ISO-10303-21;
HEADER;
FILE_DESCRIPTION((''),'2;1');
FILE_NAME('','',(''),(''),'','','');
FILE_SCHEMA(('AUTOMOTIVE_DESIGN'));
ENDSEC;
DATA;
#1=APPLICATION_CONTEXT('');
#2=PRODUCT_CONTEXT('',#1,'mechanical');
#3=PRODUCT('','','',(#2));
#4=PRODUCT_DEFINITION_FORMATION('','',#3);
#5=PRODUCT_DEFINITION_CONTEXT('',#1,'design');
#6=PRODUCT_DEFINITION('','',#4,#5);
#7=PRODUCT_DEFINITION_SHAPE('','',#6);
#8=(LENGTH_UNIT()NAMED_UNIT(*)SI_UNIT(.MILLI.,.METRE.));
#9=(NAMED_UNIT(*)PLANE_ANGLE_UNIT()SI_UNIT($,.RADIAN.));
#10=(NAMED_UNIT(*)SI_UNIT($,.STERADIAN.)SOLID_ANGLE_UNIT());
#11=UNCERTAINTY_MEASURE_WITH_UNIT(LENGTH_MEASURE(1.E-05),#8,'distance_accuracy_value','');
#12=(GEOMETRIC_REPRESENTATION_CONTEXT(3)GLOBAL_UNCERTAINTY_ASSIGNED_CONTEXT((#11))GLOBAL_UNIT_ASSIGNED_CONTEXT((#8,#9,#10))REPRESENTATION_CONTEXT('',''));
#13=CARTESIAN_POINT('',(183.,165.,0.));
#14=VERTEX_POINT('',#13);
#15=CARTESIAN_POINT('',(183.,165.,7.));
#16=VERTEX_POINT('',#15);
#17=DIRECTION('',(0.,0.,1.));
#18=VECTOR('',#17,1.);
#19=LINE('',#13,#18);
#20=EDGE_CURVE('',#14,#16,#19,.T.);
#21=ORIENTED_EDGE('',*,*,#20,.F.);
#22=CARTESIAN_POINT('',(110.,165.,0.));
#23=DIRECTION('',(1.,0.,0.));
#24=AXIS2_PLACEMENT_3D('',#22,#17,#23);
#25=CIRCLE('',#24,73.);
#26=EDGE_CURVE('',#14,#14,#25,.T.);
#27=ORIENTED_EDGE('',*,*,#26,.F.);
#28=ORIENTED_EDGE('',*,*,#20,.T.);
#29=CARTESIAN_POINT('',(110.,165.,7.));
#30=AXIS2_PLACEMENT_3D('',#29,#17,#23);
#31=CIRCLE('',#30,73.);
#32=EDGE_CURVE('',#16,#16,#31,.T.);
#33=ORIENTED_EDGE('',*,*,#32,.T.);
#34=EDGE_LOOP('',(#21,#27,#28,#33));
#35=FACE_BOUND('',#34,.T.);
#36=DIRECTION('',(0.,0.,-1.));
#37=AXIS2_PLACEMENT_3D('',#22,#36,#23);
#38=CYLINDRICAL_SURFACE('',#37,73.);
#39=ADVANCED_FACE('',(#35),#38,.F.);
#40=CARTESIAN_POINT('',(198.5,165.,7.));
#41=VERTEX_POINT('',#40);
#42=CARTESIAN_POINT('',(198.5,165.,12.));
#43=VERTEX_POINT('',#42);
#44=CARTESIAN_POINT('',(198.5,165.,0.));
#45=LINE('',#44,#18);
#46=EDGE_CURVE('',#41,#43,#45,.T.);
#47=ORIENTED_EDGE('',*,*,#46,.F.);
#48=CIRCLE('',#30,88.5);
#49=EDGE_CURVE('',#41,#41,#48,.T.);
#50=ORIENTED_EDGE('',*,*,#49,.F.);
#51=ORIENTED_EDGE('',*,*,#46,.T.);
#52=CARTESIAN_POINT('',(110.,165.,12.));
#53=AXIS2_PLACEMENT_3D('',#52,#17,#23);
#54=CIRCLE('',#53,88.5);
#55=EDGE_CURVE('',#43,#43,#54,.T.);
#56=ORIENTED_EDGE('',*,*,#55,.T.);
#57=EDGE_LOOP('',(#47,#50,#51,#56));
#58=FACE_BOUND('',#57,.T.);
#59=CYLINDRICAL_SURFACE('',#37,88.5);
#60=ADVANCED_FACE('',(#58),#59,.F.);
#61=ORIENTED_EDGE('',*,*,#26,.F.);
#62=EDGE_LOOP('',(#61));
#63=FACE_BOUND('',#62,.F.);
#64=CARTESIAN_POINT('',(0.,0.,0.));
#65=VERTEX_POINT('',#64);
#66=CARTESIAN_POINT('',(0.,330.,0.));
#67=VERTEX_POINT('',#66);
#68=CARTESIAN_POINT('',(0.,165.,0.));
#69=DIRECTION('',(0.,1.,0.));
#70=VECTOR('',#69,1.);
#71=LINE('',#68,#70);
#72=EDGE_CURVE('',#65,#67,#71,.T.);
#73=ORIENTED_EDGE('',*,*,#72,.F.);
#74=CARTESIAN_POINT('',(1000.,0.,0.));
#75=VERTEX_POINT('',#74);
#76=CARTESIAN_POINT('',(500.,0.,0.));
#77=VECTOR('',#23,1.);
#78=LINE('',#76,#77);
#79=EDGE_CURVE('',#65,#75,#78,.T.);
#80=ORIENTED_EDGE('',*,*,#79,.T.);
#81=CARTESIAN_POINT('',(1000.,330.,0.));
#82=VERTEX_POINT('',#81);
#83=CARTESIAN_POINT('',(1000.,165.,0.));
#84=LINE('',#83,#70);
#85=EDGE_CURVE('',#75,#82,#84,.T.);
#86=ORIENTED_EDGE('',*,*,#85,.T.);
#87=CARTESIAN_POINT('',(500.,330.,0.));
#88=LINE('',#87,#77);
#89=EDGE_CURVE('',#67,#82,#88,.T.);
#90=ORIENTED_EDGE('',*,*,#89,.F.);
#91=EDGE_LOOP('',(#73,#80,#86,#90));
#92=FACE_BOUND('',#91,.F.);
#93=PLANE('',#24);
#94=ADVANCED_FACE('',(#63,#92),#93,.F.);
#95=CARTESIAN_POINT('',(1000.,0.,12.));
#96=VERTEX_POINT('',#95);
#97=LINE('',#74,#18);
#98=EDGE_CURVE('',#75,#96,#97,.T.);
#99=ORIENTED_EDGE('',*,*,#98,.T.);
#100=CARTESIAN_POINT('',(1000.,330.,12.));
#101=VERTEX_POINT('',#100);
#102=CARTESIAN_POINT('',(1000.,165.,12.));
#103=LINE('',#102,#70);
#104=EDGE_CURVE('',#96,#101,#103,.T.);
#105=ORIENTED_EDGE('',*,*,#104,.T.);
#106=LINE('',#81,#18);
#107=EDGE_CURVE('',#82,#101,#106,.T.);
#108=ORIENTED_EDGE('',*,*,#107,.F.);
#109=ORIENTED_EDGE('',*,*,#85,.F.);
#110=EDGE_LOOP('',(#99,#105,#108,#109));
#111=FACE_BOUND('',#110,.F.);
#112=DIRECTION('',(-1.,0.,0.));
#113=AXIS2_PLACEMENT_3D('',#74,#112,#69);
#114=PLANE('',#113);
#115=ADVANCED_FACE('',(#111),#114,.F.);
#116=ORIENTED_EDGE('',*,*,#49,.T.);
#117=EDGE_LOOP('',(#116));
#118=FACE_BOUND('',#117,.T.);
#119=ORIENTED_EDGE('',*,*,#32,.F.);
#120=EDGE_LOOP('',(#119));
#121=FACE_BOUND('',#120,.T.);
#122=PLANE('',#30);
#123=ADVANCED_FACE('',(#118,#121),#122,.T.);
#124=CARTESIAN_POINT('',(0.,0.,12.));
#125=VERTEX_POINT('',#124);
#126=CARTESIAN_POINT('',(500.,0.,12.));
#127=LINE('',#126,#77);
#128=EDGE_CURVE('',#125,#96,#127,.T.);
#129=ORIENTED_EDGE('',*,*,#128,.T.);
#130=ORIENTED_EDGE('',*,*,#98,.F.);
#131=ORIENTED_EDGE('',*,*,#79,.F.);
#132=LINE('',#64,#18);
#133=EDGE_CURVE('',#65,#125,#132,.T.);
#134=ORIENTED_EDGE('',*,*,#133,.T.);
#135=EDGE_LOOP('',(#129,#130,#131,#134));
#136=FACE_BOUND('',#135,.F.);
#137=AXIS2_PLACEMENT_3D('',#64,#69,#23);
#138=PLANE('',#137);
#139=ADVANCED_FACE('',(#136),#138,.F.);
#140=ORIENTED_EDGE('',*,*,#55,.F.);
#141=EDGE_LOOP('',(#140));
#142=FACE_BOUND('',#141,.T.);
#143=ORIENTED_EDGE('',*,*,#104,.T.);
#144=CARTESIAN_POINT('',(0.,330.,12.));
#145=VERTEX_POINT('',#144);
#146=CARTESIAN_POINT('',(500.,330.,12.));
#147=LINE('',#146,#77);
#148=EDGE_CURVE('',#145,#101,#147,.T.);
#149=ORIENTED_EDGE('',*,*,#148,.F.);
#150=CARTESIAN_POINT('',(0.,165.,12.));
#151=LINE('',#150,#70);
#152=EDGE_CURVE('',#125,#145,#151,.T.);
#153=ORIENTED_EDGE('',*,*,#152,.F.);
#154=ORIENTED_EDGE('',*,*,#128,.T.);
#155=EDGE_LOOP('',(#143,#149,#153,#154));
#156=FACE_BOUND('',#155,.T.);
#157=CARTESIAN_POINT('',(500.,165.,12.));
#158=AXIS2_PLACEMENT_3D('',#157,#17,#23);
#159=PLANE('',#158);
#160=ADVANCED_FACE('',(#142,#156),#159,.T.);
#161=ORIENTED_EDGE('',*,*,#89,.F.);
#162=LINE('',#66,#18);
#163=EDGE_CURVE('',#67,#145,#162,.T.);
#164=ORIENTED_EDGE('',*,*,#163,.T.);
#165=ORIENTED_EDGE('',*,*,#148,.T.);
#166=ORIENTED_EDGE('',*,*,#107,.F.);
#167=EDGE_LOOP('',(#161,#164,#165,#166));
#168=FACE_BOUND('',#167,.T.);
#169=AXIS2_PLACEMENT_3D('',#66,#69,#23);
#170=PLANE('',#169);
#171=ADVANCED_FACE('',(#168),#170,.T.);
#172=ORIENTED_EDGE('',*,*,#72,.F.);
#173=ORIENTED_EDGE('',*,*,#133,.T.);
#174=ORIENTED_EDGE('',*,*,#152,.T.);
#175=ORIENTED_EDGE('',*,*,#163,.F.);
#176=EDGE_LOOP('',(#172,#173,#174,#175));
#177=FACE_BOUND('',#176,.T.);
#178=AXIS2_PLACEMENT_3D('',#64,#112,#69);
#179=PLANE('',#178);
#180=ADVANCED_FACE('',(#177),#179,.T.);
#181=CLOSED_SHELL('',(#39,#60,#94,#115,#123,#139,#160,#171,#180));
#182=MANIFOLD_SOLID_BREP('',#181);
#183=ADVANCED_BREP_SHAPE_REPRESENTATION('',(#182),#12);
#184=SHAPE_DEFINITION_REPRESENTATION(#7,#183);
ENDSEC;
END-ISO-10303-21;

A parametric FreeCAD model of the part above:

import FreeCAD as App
import Part
import Sketcher

V = App.Vector


def add_polygon(sketch, points):
    """Adds a closed chain of lines whose ends are joined by coincident constraints."""
    first, n = sketch.GeometryCount, len(points)
    for a, b in zip(points, points[1:] + points[:1]):
        sketch.addGeometry(Part.LineSegment(App.Vector(*a, 0), App.Vector(*b, 0)), False)
    for i in range(n):
        sketch.addConstraint(Sketcher.Constraint("Coincident", first + i, 2, first + (i + 1) % n, 1))

doc = App.newDocument("Part")
body = doc.addObject("PartDesign::Body", "Body")

# Sketch on XY plane
sketch1 = doc.addObject("Sketcher::SketchObject", "Sketch")
body.addObject(sketch1)
sketch1.AttachmentSupport = (doc.XY_Plane, [""])
sketch1.MapMode = "FlatFace"
add_polygon(sketch1, [(0, 330), (0, 0), (1000, 0), (1000, 330)])  # lines 0-3
sketch1.addGeometry(Part.Circle(V(110, 165, 0), V(0, 0, 1), 88), False)  # 4
sketch1.addConstraint([
    Sketcher.Constraint("Vertical", 0),
    Sketcher.Constraint("Horizontal", 1),
    Sketcher.Constraint("Vertical", 2),
    Sketcher.Constraint("Horizontal", 3),
    Sketcher.Constraint("Coincident", 0, 2, -1, 1),
    Sketcher.Constraint("Diameter", 4, 177.0),
    Sketcher.Constraint("DistanceX", 1, 1, 1, 2, 1000.0),
    Sketcher.Constraint("DistanceY", 0, 2, 0, 1, 330.0),
    Sketcher.Constraint("DistanceX", -1, 1, 4, 3, 110.0),
    Sketcher.Constraint("DistanceY", -1, 1, 4, 3, 165.0),
])
pad1 = doc.addObject("PartDesign::Pad", "Pad")
body.addObject(pad1)
pad1.Profile = sketch1
pad1.Length = 12

# Sketch on XY plane
sketch2 = doc.addObject("Sketcher::SketchObject", "Sketch001")
body.addObject(sketch2)
sketch2.AttachmentSupport = (doc.XY_Plane, [""])
sketch2.MapMode = "FlatFace"
sketch2.addGeometry([
    Part.Circle(V(110, 165, 0), V(0, 0, 1), 88),
    Part.Circle(V(110, 165, 0), V(0, 0, 1), 73),
], False)
sketch2.addConstraint([
    Sketcher.Constraint("Coincident", 1, 3, 0, 3),
    Sketcher.Constraint("Diameter", 0, 177.0),
    Sketcher.Constraint("Diameter", 1, 146.0),
    Sketcher.Constraint("DistanceX", -1, 1, 0, 3, 110.0),
    Sketcher.Constraint("DistanceY", -1, 1, 0, 3, 165.0),
])
pad2 = doc.addObject("PartDesign::Pad", "Pad001")
body.addObject(pad2)
pad2.Profile = sketch2
pad2.Length = 7

doc.recompute()
